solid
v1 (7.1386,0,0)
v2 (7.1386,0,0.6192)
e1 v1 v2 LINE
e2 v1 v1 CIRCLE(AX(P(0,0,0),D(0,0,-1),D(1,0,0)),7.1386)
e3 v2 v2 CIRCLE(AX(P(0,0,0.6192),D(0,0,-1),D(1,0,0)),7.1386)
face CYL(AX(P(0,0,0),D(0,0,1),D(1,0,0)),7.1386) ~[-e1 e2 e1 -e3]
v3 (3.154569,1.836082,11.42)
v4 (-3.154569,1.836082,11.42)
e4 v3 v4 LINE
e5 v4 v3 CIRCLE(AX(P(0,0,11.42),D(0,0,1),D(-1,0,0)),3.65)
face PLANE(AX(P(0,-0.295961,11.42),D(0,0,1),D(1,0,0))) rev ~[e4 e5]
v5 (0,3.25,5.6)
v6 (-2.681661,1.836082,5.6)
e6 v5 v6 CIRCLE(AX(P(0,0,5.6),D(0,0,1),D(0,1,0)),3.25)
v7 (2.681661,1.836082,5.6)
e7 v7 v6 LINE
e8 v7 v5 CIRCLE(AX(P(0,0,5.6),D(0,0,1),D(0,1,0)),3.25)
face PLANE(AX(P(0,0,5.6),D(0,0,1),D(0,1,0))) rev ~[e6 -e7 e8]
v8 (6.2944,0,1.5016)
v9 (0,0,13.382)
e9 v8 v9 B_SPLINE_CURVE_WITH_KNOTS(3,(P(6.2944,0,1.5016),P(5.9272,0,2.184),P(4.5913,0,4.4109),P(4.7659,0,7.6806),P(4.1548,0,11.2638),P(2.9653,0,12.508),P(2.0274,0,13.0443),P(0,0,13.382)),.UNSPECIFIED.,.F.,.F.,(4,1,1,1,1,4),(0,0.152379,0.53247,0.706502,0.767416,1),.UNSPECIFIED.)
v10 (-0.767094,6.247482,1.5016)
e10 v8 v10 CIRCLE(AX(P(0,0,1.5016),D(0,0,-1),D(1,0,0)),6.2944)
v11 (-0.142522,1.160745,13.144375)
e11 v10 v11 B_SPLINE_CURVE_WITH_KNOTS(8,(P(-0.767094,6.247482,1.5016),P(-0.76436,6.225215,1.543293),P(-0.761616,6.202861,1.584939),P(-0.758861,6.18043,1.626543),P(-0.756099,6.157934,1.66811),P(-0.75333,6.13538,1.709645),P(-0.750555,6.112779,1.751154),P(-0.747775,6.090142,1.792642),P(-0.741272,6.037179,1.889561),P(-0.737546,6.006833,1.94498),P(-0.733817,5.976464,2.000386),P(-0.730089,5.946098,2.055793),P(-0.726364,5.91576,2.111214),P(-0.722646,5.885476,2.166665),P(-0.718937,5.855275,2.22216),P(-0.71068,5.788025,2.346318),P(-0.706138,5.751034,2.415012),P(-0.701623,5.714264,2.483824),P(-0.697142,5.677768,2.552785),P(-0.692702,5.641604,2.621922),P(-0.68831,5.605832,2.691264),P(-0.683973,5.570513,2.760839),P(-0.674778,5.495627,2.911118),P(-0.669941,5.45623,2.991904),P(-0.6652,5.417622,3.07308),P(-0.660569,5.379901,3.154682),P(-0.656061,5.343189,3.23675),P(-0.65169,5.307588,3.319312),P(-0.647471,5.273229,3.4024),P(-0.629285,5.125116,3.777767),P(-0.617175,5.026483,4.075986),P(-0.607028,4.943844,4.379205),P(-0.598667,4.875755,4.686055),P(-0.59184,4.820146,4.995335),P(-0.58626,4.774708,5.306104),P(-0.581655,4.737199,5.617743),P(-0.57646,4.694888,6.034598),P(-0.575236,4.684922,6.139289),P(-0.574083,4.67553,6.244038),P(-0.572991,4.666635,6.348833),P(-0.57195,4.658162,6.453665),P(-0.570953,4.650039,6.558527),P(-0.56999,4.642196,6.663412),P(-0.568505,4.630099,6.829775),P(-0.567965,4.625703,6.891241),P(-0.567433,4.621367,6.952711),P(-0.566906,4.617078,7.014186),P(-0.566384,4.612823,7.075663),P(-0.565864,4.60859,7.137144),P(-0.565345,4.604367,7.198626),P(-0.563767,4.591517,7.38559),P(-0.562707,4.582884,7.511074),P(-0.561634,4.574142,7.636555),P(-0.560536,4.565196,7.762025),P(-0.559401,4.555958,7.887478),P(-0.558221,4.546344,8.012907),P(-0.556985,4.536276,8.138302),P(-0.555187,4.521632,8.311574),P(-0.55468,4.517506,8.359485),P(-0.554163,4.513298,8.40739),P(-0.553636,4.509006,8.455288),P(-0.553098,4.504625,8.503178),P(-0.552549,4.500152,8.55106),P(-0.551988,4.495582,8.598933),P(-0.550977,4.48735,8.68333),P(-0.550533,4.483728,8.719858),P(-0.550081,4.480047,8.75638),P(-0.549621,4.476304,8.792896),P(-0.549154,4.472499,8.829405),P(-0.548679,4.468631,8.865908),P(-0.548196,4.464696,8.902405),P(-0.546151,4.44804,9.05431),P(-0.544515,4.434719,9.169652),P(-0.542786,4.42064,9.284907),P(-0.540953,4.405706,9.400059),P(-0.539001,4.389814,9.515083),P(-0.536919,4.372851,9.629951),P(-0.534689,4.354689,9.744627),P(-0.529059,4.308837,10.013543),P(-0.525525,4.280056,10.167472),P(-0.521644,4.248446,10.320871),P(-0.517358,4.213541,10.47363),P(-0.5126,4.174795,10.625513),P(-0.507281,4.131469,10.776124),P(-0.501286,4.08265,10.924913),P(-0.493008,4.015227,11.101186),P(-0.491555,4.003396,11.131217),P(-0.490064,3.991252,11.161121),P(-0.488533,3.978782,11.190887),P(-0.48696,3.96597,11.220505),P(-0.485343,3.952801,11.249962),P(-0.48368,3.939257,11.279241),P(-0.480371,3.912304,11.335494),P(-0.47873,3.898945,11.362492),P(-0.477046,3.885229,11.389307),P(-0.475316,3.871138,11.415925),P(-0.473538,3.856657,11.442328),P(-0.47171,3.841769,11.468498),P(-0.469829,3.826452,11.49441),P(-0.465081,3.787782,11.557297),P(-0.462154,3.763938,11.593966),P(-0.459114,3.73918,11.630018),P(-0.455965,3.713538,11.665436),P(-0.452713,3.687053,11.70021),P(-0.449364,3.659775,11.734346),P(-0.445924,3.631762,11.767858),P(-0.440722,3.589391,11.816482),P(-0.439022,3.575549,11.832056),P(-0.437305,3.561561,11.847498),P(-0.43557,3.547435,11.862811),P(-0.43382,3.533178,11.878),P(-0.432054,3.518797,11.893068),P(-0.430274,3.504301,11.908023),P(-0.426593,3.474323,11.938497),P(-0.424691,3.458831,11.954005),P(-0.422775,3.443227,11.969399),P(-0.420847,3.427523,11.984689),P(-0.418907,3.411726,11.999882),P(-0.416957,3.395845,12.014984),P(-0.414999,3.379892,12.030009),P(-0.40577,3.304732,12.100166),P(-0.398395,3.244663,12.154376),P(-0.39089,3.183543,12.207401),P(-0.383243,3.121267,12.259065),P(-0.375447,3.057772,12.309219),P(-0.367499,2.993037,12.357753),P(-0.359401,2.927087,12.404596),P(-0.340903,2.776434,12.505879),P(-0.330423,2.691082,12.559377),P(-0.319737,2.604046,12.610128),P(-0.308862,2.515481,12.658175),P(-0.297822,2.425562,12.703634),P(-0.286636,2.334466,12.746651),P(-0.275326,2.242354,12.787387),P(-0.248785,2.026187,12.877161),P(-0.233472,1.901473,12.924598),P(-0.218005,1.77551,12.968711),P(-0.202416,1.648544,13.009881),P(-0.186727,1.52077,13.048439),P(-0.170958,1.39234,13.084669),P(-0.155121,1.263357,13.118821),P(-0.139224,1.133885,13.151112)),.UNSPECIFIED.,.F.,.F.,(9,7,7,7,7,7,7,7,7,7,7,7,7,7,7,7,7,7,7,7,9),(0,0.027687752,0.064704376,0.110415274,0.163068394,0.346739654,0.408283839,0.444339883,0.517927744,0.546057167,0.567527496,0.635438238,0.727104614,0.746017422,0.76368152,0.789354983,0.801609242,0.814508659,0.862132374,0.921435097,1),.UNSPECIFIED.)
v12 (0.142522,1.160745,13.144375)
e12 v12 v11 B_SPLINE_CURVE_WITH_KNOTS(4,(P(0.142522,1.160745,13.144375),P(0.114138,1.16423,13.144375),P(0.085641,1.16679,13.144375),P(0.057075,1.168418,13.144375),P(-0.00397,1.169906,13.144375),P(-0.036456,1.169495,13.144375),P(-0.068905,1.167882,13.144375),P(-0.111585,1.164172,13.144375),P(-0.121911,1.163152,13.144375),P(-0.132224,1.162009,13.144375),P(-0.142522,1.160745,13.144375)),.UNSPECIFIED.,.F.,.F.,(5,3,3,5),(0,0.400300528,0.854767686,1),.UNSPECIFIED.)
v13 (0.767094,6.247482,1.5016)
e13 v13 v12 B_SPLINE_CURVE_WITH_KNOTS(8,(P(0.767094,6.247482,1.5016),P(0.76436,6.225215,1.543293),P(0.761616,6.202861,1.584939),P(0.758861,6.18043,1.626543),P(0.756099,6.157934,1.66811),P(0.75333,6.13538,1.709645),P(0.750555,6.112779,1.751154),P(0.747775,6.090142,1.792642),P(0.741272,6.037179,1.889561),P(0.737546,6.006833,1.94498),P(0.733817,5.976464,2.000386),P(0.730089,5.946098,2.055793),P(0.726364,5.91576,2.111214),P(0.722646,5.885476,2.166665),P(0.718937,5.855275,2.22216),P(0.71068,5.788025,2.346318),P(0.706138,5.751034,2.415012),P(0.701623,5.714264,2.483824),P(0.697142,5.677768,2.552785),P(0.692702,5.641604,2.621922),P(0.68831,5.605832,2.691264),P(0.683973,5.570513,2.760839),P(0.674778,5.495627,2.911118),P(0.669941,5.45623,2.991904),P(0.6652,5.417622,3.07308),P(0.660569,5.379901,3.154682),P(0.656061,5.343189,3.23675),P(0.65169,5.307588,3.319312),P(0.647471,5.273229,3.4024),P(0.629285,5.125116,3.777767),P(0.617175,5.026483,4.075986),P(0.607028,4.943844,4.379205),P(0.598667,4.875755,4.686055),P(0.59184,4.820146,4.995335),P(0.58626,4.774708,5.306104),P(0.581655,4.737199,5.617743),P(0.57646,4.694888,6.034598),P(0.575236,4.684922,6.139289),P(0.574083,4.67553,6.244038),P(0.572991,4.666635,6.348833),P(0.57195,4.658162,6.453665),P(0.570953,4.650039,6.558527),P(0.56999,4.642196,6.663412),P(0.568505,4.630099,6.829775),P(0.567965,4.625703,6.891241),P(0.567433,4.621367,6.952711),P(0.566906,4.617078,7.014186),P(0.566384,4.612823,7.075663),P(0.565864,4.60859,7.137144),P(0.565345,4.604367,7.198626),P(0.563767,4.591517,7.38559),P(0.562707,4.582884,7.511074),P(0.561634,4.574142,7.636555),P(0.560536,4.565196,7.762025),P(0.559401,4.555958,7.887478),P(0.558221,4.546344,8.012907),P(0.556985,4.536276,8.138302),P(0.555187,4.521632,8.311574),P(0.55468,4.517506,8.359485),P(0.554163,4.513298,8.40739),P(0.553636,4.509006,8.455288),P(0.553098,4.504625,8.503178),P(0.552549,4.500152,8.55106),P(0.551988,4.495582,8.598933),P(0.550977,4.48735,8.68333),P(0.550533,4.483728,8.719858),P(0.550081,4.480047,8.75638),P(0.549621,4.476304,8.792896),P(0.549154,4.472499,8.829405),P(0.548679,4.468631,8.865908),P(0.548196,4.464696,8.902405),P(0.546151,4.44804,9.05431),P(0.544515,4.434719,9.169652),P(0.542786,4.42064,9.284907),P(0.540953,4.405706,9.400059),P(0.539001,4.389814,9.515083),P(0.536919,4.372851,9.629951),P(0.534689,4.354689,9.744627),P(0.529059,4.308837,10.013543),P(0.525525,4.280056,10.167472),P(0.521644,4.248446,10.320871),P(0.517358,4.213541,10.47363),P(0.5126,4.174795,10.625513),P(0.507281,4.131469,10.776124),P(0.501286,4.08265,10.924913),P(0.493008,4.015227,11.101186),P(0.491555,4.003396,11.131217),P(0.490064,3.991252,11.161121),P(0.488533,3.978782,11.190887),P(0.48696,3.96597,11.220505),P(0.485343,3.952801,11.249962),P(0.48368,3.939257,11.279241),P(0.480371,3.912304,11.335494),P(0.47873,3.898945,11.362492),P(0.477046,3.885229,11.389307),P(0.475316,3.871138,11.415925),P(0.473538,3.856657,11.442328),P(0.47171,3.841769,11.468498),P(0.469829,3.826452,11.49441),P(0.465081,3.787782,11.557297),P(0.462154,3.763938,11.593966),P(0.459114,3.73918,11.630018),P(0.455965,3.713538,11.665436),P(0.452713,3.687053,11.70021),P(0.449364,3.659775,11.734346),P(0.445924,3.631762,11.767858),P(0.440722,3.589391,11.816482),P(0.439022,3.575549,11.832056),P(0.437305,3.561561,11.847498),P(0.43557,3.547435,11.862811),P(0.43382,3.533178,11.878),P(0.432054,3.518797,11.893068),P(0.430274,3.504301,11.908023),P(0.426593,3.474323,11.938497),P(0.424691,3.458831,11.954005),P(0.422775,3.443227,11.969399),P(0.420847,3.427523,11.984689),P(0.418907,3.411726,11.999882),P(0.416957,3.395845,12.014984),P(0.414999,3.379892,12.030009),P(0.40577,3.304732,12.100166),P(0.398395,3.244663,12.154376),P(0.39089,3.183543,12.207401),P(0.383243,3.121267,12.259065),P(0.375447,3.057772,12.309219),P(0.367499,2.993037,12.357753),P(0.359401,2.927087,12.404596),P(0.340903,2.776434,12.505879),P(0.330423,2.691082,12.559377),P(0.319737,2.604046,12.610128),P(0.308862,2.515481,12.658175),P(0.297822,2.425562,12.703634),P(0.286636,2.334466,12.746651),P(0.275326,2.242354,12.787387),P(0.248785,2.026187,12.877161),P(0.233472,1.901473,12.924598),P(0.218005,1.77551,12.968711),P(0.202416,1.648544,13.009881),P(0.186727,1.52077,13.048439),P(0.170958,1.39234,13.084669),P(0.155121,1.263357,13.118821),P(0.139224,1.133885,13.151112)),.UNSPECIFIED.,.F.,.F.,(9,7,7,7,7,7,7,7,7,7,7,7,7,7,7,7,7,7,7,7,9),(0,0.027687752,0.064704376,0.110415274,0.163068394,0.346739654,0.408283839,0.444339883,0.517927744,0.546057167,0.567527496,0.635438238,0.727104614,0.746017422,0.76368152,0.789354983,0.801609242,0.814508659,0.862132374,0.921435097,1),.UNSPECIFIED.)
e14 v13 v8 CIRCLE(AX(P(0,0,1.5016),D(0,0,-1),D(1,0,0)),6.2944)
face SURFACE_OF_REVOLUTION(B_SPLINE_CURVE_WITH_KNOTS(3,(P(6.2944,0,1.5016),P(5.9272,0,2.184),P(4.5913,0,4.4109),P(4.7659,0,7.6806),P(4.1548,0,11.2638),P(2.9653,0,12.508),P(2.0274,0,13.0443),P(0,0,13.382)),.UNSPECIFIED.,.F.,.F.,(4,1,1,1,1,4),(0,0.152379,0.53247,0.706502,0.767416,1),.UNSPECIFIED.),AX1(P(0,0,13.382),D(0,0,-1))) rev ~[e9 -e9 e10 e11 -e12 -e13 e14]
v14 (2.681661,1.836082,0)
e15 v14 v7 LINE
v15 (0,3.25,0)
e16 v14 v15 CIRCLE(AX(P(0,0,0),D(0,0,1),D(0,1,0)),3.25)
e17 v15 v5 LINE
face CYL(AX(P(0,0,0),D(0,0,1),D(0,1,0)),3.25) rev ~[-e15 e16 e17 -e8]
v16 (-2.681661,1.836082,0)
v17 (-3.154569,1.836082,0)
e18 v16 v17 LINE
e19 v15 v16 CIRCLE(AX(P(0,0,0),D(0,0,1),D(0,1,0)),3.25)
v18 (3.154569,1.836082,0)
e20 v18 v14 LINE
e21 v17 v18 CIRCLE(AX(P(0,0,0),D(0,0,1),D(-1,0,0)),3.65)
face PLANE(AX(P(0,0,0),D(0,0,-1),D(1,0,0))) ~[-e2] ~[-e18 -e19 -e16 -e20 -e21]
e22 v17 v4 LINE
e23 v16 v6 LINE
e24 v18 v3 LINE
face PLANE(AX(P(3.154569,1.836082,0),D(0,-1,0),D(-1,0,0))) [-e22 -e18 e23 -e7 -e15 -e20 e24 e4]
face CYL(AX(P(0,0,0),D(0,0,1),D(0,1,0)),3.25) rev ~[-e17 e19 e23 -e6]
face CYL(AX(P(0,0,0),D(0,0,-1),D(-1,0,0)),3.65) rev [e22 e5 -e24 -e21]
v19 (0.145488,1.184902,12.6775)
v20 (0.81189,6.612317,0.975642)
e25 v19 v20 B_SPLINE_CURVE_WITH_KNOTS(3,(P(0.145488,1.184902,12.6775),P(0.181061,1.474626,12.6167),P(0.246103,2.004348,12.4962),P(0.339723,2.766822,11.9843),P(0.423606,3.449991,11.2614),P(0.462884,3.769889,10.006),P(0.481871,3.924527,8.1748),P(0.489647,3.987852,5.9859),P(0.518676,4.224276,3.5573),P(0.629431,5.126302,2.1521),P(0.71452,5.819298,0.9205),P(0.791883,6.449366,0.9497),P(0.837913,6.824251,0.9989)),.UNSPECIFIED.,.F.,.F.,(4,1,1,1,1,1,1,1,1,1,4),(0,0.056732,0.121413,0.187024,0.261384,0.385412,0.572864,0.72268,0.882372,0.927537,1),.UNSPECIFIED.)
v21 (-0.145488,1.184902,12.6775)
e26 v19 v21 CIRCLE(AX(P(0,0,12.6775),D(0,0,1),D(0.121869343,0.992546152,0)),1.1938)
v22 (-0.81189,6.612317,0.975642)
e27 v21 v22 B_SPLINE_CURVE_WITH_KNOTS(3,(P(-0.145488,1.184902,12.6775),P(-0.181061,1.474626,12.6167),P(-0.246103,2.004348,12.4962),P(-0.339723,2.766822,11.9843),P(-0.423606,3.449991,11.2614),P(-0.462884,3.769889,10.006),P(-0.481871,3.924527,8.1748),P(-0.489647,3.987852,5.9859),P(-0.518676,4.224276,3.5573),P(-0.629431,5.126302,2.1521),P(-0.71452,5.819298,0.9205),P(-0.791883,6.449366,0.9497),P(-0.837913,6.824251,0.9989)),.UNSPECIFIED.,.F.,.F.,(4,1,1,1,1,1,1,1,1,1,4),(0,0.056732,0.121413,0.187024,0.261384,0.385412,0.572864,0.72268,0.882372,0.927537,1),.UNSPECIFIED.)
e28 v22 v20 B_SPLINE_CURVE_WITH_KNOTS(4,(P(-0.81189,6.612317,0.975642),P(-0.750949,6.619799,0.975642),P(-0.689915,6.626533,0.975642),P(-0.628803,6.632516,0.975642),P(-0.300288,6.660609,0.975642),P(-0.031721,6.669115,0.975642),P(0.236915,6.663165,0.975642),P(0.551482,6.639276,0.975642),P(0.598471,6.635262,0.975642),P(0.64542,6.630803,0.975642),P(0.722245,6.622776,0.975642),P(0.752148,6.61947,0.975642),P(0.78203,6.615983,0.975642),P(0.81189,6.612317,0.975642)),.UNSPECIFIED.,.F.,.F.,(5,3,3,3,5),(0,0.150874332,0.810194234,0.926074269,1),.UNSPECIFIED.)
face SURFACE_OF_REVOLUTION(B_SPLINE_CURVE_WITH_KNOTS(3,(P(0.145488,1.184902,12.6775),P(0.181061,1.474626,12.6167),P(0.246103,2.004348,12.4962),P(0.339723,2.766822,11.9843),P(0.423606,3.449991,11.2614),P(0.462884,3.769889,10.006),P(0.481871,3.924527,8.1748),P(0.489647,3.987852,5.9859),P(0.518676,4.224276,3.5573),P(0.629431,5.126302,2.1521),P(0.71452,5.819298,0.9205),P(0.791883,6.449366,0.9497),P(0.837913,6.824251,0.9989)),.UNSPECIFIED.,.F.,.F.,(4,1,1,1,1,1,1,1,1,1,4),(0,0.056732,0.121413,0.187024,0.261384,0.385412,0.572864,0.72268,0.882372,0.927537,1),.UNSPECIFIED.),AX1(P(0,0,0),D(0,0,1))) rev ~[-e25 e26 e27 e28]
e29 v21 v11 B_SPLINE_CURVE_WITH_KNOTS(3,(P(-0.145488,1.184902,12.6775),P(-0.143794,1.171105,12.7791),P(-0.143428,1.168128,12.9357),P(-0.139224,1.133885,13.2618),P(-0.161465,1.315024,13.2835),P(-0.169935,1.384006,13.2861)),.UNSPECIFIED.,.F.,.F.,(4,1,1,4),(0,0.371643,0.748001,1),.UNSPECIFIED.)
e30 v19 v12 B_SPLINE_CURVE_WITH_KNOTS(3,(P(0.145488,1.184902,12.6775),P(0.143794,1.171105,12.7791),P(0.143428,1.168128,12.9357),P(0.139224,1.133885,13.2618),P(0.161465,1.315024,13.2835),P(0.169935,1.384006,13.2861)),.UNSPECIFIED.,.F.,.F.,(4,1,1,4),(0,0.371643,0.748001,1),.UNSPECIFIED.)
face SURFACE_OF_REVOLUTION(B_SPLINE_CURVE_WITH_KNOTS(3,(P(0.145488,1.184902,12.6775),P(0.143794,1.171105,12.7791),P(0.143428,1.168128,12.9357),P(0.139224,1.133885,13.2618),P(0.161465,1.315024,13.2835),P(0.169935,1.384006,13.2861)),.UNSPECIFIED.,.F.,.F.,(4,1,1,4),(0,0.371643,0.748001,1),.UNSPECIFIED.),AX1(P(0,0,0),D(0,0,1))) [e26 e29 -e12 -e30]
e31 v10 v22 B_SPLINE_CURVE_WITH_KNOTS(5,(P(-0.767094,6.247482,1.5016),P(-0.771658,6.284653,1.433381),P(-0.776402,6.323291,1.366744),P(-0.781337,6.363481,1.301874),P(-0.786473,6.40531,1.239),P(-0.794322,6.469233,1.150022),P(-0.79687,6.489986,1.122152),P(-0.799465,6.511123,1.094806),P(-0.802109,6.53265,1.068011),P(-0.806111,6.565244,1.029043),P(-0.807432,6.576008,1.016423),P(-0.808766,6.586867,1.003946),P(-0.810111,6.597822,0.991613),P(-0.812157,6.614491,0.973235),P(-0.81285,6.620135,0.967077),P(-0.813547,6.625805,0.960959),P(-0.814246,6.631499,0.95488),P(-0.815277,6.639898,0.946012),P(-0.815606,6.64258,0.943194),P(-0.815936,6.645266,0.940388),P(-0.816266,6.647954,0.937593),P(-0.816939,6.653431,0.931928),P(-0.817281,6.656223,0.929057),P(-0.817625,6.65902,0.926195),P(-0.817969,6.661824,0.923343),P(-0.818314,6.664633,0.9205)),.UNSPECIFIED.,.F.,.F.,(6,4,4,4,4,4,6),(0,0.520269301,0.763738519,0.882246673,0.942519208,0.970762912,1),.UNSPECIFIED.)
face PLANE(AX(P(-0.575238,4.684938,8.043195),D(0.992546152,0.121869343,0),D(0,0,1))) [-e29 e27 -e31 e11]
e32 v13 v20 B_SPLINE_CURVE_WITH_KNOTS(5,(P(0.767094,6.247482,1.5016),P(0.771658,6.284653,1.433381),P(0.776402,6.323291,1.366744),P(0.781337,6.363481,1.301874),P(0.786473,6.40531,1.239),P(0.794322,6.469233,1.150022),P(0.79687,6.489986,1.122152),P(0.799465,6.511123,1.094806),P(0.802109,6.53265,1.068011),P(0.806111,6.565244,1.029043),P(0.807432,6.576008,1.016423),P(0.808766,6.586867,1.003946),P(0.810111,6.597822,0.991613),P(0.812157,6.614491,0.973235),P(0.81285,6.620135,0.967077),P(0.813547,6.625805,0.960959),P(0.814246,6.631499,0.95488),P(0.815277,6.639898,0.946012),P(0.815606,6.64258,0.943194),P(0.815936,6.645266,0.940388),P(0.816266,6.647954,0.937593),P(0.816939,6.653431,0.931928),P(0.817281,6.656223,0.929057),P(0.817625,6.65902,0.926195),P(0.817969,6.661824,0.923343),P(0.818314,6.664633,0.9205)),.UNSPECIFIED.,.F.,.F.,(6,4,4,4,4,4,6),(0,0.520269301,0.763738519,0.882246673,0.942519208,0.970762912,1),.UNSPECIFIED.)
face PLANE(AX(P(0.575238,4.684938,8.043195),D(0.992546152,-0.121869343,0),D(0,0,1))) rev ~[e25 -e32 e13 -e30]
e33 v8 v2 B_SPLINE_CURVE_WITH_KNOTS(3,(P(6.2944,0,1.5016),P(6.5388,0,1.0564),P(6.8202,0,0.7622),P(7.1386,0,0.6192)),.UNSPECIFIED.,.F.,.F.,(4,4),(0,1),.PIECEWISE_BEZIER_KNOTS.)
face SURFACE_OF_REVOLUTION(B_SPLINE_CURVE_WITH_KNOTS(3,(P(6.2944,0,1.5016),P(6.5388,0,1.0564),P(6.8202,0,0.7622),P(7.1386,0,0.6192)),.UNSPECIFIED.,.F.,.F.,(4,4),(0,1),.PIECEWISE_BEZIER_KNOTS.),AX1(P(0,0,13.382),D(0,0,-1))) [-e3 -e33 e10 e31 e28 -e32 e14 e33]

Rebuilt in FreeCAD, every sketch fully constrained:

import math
import FreeCAD as App
import Part
import Sketcher
from FreeCAD import Vector

doc = App.newDocument("Part")
params = doc.addObject("Spreadsheet::Sheet", "Params")
for row, (alias, value) in enumerate([
    ("revolution_angle", "360 deg"),
    ("sketch2_radius", "3.65 mm"),
    ("pocket1_length", "11.42 mm"),
    ("groove_angle", "14 deg"),
    ("sketch4_diameter", "6.5 mm"),
    ("hole_diameter", "6.5 mm"),
    ("hole_depth", "5.6 mm"),
], start=1):
    params.set(f"A{row}", alias)
    params.set(f"B{row}", "=" + value)
    params.setAlias(f"B{row}", alias)

body = doc.addObject("PartDesign::Body", "Body")

sketch1 = doc.addObject("Sketcher::SketchObject", "Sketch")
body.addObject(sketch1)
sketch1.AttachmentSupport = (doc.XZ_Plane, [""])
sketch1.MapMode = "FlatFace"
sketch1.addGeometry([
    Part.BSplineCurve([Vector(6.2944, 1.5016, 0), Vector(6.5388, 1.0564, 0), Vector(6.8202, 0.7622, 0), Vector(7.1386, 0.6192, 0)], [4, 4], [0, 1], False, 3, [1, 1, 1, 1], False),
    Part.BSplineCurve([Vector(6.2944, 1.5016, 0), Vector(5.9272, 2.184, 0), Vector(4.5913, 4.4109, 0), Vector(4.7659, 7.6806, 0), Vector(4.1548, 11.2638, 0), Vector(2.9653, 12.508, 0), Vector(2.0274, 13.0443, 0), Vector(0, 13.382, 0)], [4, 1, 1, 1, 1, 4], [0, 0.152379, 0.53247, 0.706502, 0.767416, 1], False, 3, [1, 1, 1, 1, 1, 1, 1, 1], False),
    Part.LineSegment(Vector(0, 13.382, 0), Vector(0, 0, 0)),
    Part.LineSegment(Vector(0, 0, 0), Vector(7.1386, 0, 0)),
    Part.LineSegment(Vector(7.1386, 0, 0), Vector(7.1386, 0.6192, 0)),
], False)
sketch1.addConstraint([
    Sketcher.Constraint("Block", 0),
    Sketcher.Constraint("Block", 1),
    Sketcher.Constraint("Coincident", 1, 2, 2, 1),
    Sketcher.Constraint("Coincident", 2, 2, 3, 1),
    Sketcher.Constraint("Coincident", 3, 2, 4, 1),
    Sketcher.Constraint("Coincident", 4, 2, 0, 2),
    Sketcher.Constraint("Vertical", 2),
    Sketcher.Constraint("Horizontal", 3),
    Sketcher.Constraint("Vertical", 4),
    Sketcher.Constraint("PointOnObject", 3, 2, -1),
])
revolution = doc.addObject("PartDesign::Revolution", "Revolution")
body.addObject(revolution)
revolution.Profile = sketch1
revolution.ReferenceAxis = (sketch1, ["V_Axis"])
revolution.setExpression("Angle", "Params.revolution_angle")

sketch2 = doc.addObject("Sketcher::SketchObject", "Sketch001")
body.addObject(sketch2)
sketch2.AttachmentSupport = (doc.XY_Plane, [""])
sketch2.MapMode = "FlatFace"
sketch2.addGeometry([
    Part.LineSegment(Vector(-3.2, 1.8, 0), Vector(3.2, 1.8, 0)),
    Part.ArcOfCircle(Part.Circle(Vector(0, 0, 0), Vector(0, 0, 1), 3.7), math.radians(150), math.radians(390)),
], False)
sketch2.addConstraint([
    Sketcher.Constraint("Coincident", 0, 1, 1, 1),
    Sketcher.Constraint("Coincident", 1, 2, 0, 2),
    Sketcher.Constraint("Horizontal", 0),
    Sketcher.Constraint("Coincident", 1, 3, -1, 1),
    Sketcher.Constraint("Radius", 1, 3.65),
    Sketcher.Constraint("DistanceX", 0, 1, 0, 2, 6.3092),
])
sketch2.setExpression("Constraints[4]", "Params.sketch2_radius")
pocket1 = doc.addObject("PartDesign::Pocket", "Pocket")
body.addObject(pocket1)
pocket1.Profile = sketch2
pocket1.setExpression("Length", "Params.pocket1_length")
pocket1.Reversed = True

sketch3 = doc.addObject("Sketcher::SketchObject", "Sketch002")
body.addObject(sketch3)
sketch3.AttachmentSupport = (doc.YZ_Plane, [""])
sketch3.MapMode = "FlatFace"
sketch3.addGeometry([
    Part.LineSegment(Vector(6.0925, 10.5194, 0), Vector(4.2495, 14.0621, 0)),
    Part.LineSegment(Vector(4.2495, 14.0621, 0), Vector(1.6055, 13.785, 0)),
    Part.LineSegment(Vector(1.6055, 13.785, 0), Vector(1.3944, 13.2861, 0)),
    Part.BSplineCurve([Vector(1.1938, 12.6775, 0), Vector(1.1799, 12.7791, 0), Vector(1.1769, 12.9357, 0), Vector(1.1424, 13.2618, 0), Vector(1.3249, 13.2835, 0), Vector(1.3944, 13.2861, 0)], [4, 1, 1, 4], [0, 0.371643, 0.748001, 1], False, 3, [1, 1, 1, 1, 1, 1], False),
    Part.BSplineCurve([Vector(1.1938, 12.6775, 0), Vector(1.4857, 12.6167, 0), Vector(2.0194, 12.4962, 0), Vector(2.7876, 11.9843, 0), Vector(3.4759, 11.2614, 0), Vector(3.7982, 10.006, 0), Vector(3.954, 8.1748, 0), Vector(4.0178, 5.9859, 0), Vector(4.256, 3.5573, 0), Vector(5.1648, 2.1521, 0), Vector(5.863, 0.9205, 0), Vector(6.4978, 0.9497, 0), Vector(6.8755, 0.9989, 0)], [4, 1, 1, 1, 1, 1, 1, 1, 1, 1, 4], [0, 0.056732, 0.121413, 0.187024, 0.261384, 0.385412, 0.572864, 0.72268, 0.882372, 0.927537, 1], False, 3, [1, 1, 1, 1, 1, 1, 1, 1, 1, 1, 1, 1, 1], False),
    Part.LineSegment(Vector(6.8755, 0.9989, 0), Vector(6.0925, 10.5194, 0)),
], False)
sketch3.addConstraint([
    Sketcher.Constraint("Block", 3),
    Sketcher.Constraint("Block", 4),
    Sketcher.Constraint("Coincident", 0, 2, 1, 1),
    Sketcher.Constraint("Coincident", 1, 2, 2, 1),
    Sketcher.Constraint("Coincident", 2, 2, 3, 2),
    Sketcher.Constraint("Coincident", 4, 2, 5, 1),
    Sketcher.Constraint("Coincident", 5, 2, 0, 1),
    Sketcher.Constraint("DistanceY", -1, 1, 0, 2, 14.062),
    Sketcher.Constraint("DistanceY", -1, 1, 1, 2, 13.785),
    Sketcher.Constraint("DistanceX", 1, 2, 0, 2, 2.644),
    Sketcher.Constraint("DistanceX", 2, 2, 1, 2, 0.211),
    Sketcher.Constraint("DistanceX", 0, 2, 5, 2, 1.843),
    Sketcher.Constraint("Distance", 0, 3.9934),
])
groove = doc.addObject("PartDesign::Groove", "Groove")
body.addObject(groove)
groove.Profile = sketch3
groove.ReferenceAxis = (sketch3, ["V_Axis"])
groove.setExpression("Angle", "Params.groove_angle")
groove.Midplane = True

sketch4 = doc.addObject("Sketcher::SketchObject", "Sketch003")
body.addObject(sketch4)
sketch4.AttachmentSupport = (doc.XY_Plane, [""])
sketch4.MapMode = "FlatFace"
sketch4.addGeometry(Part.Circle(Vector(0, 0, 0), Vector(0, 0, 1), 3.2), False)
sketch4.addConstraint([
    Sketcher.Constraint("Coincident", 0, 3, -1, 1),
    Sketcher.Constraint("Diameter", 0, 6.5),
])
sketch4.setExpression("Constraints[1]", "Params.sketch4_diameter")
doc.recompute()
hole = doc.addObject("PartDesign::Hole", "Hole")
body.addObject(hole)
hole.Profile = sketch4
hole.ThreadType = "None"
hole.setExpression("Diameter", "Params.hole_diameter")
hole.DepthType = "Dimension"
hole.setExpression("Depth", "Params.hole_depth")
hole.DrillPoint = "Flat"
hole.Reversed = True

doc.recompute()
